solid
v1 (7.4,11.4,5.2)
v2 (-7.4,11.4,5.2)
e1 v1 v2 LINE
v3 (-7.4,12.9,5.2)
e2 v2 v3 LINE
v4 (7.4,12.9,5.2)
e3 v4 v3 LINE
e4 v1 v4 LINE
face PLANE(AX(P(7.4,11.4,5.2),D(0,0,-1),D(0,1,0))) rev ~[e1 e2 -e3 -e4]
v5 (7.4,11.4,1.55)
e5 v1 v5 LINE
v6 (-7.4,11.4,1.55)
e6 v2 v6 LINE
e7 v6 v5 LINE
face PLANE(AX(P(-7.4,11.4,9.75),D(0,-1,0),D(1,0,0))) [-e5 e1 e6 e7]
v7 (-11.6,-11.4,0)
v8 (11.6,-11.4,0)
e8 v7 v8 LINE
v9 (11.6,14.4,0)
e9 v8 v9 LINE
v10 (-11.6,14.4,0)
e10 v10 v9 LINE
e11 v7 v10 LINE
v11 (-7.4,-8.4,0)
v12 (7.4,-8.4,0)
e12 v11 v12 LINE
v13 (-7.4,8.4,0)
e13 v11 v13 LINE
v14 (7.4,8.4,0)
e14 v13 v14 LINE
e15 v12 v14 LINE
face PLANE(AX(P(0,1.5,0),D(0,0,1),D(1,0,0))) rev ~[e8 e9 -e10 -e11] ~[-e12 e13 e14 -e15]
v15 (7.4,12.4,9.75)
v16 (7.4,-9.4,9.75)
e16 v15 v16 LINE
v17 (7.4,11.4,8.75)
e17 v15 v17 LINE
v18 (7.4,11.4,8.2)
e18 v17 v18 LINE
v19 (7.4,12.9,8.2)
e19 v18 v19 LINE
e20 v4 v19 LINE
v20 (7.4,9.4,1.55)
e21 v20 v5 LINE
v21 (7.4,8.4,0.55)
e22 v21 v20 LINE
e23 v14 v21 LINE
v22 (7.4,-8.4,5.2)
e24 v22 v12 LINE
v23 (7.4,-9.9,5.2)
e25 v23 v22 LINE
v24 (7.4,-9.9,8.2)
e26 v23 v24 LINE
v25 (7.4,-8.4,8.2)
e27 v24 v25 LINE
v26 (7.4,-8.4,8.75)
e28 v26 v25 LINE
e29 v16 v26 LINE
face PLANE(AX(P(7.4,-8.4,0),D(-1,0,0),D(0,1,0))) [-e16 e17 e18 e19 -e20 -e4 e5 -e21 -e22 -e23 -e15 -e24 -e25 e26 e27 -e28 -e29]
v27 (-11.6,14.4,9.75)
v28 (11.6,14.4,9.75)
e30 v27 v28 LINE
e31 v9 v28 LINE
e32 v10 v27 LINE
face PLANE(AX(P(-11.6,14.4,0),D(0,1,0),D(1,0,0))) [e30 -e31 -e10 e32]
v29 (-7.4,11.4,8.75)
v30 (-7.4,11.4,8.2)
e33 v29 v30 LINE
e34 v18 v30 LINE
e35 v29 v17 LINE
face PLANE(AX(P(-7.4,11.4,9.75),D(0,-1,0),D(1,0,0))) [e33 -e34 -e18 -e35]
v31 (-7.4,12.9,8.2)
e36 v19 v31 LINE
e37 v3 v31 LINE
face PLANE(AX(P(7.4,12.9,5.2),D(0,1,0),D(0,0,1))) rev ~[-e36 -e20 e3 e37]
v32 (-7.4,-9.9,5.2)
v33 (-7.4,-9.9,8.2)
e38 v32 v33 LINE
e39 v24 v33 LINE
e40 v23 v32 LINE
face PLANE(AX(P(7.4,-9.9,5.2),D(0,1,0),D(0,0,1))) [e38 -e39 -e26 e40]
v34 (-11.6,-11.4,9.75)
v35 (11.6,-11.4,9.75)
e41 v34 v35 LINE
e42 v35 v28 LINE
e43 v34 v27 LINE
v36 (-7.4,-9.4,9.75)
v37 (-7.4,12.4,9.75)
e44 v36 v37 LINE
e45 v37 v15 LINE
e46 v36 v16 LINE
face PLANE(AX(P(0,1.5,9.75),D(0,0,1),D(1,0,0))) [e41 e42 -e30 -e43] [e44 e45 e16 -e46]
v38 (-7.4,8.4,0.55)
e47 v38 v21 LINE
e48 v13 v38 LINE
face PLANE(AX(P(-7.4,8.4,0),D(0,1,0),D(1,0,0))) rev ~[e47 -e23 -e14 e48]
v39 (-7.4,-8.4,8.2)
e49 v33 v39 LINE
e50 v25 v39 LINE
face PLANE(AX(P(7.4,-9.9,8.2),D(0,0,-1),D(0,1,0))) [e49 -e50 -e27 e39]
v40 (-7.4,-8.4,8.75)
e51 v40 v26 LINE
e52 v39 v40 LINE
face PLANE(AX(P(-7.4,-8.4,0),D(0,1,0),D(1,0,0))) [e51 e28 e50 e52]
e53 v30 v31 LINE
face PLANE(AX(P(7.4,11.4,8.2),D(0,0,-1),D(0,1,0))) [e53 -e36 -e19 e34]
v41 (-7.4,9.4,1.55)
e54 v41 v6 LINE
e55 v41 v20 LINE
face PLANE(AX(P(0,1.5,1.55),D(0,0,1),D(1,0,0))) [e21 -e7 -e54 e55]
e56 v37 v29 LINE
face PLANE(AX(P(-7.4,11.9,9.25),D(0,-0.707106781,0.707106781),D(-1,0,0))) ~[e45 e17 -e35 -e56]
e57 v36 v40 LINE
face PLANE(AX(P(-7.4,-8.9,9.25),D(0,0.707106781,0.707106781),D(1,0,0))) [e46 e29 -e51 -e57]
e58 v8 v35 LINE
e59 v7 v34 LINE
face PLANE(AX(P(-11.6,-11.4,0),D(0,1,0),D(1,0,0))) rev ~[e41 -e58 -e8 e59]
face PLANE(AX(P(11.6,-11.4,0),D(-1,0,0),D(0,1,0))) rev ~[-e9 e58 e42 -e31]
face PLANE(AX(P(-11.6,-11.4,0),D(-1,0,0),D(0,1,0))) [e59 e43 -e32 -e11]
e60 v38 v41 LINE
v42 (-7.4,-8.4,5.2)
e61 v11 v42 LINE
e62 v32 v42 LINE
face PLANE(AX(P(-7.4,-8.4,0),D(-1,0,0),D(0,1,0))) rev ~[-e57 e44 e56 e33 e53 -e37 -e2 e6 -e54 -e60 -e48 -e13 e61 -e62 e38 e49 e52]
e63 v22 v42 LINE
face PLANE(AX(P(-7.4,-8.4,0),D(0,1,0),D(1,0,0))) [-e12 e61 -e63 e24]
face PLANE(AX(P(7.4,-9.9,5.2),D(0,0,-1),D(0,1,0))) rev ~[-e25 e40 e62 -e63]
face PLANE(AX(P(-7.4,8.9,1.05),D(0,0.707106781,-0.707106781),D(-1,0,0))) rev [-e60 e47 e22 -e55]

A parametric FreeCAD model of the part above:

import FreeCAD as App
import Part
import Sketcher
from FreeCAD import Vector
Q = App.Units.Quantity


def edges_at(feature, points):
    """Names of the edges that pass closest to the given points."""
    edges = feature.Shape.Edges
    near = lambda p: min(range(len(edges)), key=lambda i: edges[i].distToShape(Part.Vertex(*p))[0])
    return sorted({f"Edge{near(p) + 1}" for p in points})


def add_polygon(sketch, points):
    """Adds a closed chain of lines whose ends are joined by coincident constraints."""
    first, n = sketch.GeometryCount, len(points)
    for a, b in zip(points, points[1:] + points[:1]):
        sketch.addGeometry(Part.LineSegment(App.Vector(*a, 0), App.Vector(*b, 0)), False)
    for i in range(n):
        sketch.addConstraint(Sketcher.Constraint("Coincident", first + i, 2, first + (i + 1) % n, 1))

doc = App.newDocument("Part")
body = doc.addObject("PartDesign::Body", "Body")

# Sketch on XY plane
sketch1 = body.newObject("Sketcher::SketchObject", "Sketch")
sketch1.AttachmentSupport = (doc.getObject("XY_Plane"), [""])
sketch1.MapMode = "FlatFace"
add_polygon(sketch1, [(-12, 14), (-12, -11), (12, -11), (12, 14)])  # lines 0-3
add_polygon(sketch1, [(7, -8), (-7, -8), (-7, 8), (7, 8)])  # lines 4-7
sketch1.addConstraint([
    Sketcher.Constraint("Vertical", 0),
    Sketcher.Constraint("Horizontal", 1),
    Sketcher.Constraint("Vertical", 2),
    Sketcher.Constraint("Horizontal", 3),
    Sketcher.Constraint("Horizontal", 4),
    Sketcher.Constraint("Vertical", 5),
    Sketcher.Constraint("Horizontal", 6),
    Sketcher.Constraint("Vertical", 7),
    Sketcher.Constraint("Symmetric", 4, 2, 6, 2, -1, 1),
    Sketcher.Constraint("DistanceX", 1, 1, 1, 2, Q("23.2 mm")),
    Sketcher.Constraint("DistanceX", 4, 2, 4, 1, Q("14.8 mm")),
    Sketcher.Constraint("DistanceY", 0, 2, 0, 1, Q("25.8 mm")),
    Sketcher.Constraint("DistanceY", 5, 1, 5, 2, Q("16.8 mm")),
    Sketcher.Constraint("DistanceY", 0, 2, 4, 2, Q("3 mm")),
    Sketcher.Constraint("DistanceX", 4, 2, 1, 2, Q("19 mm")),
])
pad1 = body.newObject("PartDesign::Pad", "Pad")
pad1.Profile = sketch1
pad1.Length = 9.75

# Sketch on XY plane
sketch2 = body.newObject("Sketcher::SketchObject", "Sketch001")
sketch2.AttachmentSupport = (doc.getObject("XY_Plane"), [""])
sketch2.MapMode = "FlatFace"
sketch2.AttachmentOffset = App.Placement(Vector(0, 0, 9.75), App.Rotation())
add_polygon(sketch2, [(-7, 11), (-7, -8), (7, -8), (7, 11)])  # lines 0-3
sketch2.addConstraint([
    Sketcher.Constraint("Vertical", 0),
    Sketcher.Constraint("Horizontal", 1),
    Sketcher.Constraint("Vertical", 2),
    Sketcher.Constraint("Horizontal", 3),
    Sketcher.Constraint("DistanceX", 1, 1, 1, 2, Q("14.8 mm")),
    Sketcher.Constraint("DistanceY", 0, 2, 0, 1, Q("19.8 mm")),
    Sketcher.Constraint("DistanceX", 0, 2, -1, 1, Q("7.4 mm")),
    Sketcher.Constraint("DistanceY", 0, 2, -1, 1, Q("8.4 mm")),
])
pocket1 = body.newObject("PartDesign::Pocket", "Pocket")
pocket1.Profile = sketch2
pocket1.Length = 8.2

# Sketch on YZ plane
sketch3 = body.newObject("Sketcher::SketchObject", "Sketch002")
sketch3.AttachmentSupport = (doc.getObject("YZ_Plane"), [""])
sketch3.MapMode = "FlatFace"
sketch3.AttachmentOffset = App.Placement(Vector(0, 0, 7.4), App.Rotation())
add_polygon(sketch3, [(-9.9, 8.2), (-9.9, 5.2), (-8.4, 5.2), (-8.4, 8.2)])  # lines 0-3
add_polygon(sketch3, [(11.4, 8.2), (11.4, 5.2), (12.9, 5.2), (12.9, 8.2)])  # lines 4-7
sketch3.addConstraint([
    Sketcher.Constraint("Vertical", 0),
    Sketcher.Constraint("Horizontal", 1),
    Sketcher.Constraint("Vertical", 2),
    Sketcher.Constraint("Horizontal", 3),
    Sketcher.Constraint("Vertical", 4),
    Sketcher.Constraint("Horizontal", 5),
    Sketcher.Constraint("Vertical", 6),
    Sketcher.Constraint("Horizontal", 7),
    Sketcher.Constraint("Horizontal", 1, 2, 4, 2),
    Sketcher.Constraint("Horizontal", 3, 2, 6, 2),
    Sketcher.Constraint("Equal", 3, 5),
    Sketcher.Constraint("DistanceY", 0, 2, 0, 1, Q("3 mm")),
    Sketcher.Constraint("DistanceX", 1, 1, 1, 2, Q("1.5 mm")),
    Sketcher.Constraint("DistanceX", 0, 2, -1, 1, Q("9.9 mm")),
    Sketcher.Constraint("DistanceY", -1, 1, 0, 2, Q("5.2 mm")),
    Sketcher.Constraint("DistanceX", -1, 1, 4, 2, Q("11.4 mm")),
])
pocket2 = body.newObject("PartDesign::Pocket", "Pocket001")
pocket2.Profile = sketch3
pocket2.Length = 14.8
doc.recompute()

chamfer = body.newObject("PartDesign::Chamfer", "Chamfer")
chamfer.Base = (pocket2, edges_at(pocket2, [(0, 8.4, 1.55), (0, 11.4, 9.75), (0, -8.4, 9.75)]))
chamfer.Size = 1

doc.recompute()
